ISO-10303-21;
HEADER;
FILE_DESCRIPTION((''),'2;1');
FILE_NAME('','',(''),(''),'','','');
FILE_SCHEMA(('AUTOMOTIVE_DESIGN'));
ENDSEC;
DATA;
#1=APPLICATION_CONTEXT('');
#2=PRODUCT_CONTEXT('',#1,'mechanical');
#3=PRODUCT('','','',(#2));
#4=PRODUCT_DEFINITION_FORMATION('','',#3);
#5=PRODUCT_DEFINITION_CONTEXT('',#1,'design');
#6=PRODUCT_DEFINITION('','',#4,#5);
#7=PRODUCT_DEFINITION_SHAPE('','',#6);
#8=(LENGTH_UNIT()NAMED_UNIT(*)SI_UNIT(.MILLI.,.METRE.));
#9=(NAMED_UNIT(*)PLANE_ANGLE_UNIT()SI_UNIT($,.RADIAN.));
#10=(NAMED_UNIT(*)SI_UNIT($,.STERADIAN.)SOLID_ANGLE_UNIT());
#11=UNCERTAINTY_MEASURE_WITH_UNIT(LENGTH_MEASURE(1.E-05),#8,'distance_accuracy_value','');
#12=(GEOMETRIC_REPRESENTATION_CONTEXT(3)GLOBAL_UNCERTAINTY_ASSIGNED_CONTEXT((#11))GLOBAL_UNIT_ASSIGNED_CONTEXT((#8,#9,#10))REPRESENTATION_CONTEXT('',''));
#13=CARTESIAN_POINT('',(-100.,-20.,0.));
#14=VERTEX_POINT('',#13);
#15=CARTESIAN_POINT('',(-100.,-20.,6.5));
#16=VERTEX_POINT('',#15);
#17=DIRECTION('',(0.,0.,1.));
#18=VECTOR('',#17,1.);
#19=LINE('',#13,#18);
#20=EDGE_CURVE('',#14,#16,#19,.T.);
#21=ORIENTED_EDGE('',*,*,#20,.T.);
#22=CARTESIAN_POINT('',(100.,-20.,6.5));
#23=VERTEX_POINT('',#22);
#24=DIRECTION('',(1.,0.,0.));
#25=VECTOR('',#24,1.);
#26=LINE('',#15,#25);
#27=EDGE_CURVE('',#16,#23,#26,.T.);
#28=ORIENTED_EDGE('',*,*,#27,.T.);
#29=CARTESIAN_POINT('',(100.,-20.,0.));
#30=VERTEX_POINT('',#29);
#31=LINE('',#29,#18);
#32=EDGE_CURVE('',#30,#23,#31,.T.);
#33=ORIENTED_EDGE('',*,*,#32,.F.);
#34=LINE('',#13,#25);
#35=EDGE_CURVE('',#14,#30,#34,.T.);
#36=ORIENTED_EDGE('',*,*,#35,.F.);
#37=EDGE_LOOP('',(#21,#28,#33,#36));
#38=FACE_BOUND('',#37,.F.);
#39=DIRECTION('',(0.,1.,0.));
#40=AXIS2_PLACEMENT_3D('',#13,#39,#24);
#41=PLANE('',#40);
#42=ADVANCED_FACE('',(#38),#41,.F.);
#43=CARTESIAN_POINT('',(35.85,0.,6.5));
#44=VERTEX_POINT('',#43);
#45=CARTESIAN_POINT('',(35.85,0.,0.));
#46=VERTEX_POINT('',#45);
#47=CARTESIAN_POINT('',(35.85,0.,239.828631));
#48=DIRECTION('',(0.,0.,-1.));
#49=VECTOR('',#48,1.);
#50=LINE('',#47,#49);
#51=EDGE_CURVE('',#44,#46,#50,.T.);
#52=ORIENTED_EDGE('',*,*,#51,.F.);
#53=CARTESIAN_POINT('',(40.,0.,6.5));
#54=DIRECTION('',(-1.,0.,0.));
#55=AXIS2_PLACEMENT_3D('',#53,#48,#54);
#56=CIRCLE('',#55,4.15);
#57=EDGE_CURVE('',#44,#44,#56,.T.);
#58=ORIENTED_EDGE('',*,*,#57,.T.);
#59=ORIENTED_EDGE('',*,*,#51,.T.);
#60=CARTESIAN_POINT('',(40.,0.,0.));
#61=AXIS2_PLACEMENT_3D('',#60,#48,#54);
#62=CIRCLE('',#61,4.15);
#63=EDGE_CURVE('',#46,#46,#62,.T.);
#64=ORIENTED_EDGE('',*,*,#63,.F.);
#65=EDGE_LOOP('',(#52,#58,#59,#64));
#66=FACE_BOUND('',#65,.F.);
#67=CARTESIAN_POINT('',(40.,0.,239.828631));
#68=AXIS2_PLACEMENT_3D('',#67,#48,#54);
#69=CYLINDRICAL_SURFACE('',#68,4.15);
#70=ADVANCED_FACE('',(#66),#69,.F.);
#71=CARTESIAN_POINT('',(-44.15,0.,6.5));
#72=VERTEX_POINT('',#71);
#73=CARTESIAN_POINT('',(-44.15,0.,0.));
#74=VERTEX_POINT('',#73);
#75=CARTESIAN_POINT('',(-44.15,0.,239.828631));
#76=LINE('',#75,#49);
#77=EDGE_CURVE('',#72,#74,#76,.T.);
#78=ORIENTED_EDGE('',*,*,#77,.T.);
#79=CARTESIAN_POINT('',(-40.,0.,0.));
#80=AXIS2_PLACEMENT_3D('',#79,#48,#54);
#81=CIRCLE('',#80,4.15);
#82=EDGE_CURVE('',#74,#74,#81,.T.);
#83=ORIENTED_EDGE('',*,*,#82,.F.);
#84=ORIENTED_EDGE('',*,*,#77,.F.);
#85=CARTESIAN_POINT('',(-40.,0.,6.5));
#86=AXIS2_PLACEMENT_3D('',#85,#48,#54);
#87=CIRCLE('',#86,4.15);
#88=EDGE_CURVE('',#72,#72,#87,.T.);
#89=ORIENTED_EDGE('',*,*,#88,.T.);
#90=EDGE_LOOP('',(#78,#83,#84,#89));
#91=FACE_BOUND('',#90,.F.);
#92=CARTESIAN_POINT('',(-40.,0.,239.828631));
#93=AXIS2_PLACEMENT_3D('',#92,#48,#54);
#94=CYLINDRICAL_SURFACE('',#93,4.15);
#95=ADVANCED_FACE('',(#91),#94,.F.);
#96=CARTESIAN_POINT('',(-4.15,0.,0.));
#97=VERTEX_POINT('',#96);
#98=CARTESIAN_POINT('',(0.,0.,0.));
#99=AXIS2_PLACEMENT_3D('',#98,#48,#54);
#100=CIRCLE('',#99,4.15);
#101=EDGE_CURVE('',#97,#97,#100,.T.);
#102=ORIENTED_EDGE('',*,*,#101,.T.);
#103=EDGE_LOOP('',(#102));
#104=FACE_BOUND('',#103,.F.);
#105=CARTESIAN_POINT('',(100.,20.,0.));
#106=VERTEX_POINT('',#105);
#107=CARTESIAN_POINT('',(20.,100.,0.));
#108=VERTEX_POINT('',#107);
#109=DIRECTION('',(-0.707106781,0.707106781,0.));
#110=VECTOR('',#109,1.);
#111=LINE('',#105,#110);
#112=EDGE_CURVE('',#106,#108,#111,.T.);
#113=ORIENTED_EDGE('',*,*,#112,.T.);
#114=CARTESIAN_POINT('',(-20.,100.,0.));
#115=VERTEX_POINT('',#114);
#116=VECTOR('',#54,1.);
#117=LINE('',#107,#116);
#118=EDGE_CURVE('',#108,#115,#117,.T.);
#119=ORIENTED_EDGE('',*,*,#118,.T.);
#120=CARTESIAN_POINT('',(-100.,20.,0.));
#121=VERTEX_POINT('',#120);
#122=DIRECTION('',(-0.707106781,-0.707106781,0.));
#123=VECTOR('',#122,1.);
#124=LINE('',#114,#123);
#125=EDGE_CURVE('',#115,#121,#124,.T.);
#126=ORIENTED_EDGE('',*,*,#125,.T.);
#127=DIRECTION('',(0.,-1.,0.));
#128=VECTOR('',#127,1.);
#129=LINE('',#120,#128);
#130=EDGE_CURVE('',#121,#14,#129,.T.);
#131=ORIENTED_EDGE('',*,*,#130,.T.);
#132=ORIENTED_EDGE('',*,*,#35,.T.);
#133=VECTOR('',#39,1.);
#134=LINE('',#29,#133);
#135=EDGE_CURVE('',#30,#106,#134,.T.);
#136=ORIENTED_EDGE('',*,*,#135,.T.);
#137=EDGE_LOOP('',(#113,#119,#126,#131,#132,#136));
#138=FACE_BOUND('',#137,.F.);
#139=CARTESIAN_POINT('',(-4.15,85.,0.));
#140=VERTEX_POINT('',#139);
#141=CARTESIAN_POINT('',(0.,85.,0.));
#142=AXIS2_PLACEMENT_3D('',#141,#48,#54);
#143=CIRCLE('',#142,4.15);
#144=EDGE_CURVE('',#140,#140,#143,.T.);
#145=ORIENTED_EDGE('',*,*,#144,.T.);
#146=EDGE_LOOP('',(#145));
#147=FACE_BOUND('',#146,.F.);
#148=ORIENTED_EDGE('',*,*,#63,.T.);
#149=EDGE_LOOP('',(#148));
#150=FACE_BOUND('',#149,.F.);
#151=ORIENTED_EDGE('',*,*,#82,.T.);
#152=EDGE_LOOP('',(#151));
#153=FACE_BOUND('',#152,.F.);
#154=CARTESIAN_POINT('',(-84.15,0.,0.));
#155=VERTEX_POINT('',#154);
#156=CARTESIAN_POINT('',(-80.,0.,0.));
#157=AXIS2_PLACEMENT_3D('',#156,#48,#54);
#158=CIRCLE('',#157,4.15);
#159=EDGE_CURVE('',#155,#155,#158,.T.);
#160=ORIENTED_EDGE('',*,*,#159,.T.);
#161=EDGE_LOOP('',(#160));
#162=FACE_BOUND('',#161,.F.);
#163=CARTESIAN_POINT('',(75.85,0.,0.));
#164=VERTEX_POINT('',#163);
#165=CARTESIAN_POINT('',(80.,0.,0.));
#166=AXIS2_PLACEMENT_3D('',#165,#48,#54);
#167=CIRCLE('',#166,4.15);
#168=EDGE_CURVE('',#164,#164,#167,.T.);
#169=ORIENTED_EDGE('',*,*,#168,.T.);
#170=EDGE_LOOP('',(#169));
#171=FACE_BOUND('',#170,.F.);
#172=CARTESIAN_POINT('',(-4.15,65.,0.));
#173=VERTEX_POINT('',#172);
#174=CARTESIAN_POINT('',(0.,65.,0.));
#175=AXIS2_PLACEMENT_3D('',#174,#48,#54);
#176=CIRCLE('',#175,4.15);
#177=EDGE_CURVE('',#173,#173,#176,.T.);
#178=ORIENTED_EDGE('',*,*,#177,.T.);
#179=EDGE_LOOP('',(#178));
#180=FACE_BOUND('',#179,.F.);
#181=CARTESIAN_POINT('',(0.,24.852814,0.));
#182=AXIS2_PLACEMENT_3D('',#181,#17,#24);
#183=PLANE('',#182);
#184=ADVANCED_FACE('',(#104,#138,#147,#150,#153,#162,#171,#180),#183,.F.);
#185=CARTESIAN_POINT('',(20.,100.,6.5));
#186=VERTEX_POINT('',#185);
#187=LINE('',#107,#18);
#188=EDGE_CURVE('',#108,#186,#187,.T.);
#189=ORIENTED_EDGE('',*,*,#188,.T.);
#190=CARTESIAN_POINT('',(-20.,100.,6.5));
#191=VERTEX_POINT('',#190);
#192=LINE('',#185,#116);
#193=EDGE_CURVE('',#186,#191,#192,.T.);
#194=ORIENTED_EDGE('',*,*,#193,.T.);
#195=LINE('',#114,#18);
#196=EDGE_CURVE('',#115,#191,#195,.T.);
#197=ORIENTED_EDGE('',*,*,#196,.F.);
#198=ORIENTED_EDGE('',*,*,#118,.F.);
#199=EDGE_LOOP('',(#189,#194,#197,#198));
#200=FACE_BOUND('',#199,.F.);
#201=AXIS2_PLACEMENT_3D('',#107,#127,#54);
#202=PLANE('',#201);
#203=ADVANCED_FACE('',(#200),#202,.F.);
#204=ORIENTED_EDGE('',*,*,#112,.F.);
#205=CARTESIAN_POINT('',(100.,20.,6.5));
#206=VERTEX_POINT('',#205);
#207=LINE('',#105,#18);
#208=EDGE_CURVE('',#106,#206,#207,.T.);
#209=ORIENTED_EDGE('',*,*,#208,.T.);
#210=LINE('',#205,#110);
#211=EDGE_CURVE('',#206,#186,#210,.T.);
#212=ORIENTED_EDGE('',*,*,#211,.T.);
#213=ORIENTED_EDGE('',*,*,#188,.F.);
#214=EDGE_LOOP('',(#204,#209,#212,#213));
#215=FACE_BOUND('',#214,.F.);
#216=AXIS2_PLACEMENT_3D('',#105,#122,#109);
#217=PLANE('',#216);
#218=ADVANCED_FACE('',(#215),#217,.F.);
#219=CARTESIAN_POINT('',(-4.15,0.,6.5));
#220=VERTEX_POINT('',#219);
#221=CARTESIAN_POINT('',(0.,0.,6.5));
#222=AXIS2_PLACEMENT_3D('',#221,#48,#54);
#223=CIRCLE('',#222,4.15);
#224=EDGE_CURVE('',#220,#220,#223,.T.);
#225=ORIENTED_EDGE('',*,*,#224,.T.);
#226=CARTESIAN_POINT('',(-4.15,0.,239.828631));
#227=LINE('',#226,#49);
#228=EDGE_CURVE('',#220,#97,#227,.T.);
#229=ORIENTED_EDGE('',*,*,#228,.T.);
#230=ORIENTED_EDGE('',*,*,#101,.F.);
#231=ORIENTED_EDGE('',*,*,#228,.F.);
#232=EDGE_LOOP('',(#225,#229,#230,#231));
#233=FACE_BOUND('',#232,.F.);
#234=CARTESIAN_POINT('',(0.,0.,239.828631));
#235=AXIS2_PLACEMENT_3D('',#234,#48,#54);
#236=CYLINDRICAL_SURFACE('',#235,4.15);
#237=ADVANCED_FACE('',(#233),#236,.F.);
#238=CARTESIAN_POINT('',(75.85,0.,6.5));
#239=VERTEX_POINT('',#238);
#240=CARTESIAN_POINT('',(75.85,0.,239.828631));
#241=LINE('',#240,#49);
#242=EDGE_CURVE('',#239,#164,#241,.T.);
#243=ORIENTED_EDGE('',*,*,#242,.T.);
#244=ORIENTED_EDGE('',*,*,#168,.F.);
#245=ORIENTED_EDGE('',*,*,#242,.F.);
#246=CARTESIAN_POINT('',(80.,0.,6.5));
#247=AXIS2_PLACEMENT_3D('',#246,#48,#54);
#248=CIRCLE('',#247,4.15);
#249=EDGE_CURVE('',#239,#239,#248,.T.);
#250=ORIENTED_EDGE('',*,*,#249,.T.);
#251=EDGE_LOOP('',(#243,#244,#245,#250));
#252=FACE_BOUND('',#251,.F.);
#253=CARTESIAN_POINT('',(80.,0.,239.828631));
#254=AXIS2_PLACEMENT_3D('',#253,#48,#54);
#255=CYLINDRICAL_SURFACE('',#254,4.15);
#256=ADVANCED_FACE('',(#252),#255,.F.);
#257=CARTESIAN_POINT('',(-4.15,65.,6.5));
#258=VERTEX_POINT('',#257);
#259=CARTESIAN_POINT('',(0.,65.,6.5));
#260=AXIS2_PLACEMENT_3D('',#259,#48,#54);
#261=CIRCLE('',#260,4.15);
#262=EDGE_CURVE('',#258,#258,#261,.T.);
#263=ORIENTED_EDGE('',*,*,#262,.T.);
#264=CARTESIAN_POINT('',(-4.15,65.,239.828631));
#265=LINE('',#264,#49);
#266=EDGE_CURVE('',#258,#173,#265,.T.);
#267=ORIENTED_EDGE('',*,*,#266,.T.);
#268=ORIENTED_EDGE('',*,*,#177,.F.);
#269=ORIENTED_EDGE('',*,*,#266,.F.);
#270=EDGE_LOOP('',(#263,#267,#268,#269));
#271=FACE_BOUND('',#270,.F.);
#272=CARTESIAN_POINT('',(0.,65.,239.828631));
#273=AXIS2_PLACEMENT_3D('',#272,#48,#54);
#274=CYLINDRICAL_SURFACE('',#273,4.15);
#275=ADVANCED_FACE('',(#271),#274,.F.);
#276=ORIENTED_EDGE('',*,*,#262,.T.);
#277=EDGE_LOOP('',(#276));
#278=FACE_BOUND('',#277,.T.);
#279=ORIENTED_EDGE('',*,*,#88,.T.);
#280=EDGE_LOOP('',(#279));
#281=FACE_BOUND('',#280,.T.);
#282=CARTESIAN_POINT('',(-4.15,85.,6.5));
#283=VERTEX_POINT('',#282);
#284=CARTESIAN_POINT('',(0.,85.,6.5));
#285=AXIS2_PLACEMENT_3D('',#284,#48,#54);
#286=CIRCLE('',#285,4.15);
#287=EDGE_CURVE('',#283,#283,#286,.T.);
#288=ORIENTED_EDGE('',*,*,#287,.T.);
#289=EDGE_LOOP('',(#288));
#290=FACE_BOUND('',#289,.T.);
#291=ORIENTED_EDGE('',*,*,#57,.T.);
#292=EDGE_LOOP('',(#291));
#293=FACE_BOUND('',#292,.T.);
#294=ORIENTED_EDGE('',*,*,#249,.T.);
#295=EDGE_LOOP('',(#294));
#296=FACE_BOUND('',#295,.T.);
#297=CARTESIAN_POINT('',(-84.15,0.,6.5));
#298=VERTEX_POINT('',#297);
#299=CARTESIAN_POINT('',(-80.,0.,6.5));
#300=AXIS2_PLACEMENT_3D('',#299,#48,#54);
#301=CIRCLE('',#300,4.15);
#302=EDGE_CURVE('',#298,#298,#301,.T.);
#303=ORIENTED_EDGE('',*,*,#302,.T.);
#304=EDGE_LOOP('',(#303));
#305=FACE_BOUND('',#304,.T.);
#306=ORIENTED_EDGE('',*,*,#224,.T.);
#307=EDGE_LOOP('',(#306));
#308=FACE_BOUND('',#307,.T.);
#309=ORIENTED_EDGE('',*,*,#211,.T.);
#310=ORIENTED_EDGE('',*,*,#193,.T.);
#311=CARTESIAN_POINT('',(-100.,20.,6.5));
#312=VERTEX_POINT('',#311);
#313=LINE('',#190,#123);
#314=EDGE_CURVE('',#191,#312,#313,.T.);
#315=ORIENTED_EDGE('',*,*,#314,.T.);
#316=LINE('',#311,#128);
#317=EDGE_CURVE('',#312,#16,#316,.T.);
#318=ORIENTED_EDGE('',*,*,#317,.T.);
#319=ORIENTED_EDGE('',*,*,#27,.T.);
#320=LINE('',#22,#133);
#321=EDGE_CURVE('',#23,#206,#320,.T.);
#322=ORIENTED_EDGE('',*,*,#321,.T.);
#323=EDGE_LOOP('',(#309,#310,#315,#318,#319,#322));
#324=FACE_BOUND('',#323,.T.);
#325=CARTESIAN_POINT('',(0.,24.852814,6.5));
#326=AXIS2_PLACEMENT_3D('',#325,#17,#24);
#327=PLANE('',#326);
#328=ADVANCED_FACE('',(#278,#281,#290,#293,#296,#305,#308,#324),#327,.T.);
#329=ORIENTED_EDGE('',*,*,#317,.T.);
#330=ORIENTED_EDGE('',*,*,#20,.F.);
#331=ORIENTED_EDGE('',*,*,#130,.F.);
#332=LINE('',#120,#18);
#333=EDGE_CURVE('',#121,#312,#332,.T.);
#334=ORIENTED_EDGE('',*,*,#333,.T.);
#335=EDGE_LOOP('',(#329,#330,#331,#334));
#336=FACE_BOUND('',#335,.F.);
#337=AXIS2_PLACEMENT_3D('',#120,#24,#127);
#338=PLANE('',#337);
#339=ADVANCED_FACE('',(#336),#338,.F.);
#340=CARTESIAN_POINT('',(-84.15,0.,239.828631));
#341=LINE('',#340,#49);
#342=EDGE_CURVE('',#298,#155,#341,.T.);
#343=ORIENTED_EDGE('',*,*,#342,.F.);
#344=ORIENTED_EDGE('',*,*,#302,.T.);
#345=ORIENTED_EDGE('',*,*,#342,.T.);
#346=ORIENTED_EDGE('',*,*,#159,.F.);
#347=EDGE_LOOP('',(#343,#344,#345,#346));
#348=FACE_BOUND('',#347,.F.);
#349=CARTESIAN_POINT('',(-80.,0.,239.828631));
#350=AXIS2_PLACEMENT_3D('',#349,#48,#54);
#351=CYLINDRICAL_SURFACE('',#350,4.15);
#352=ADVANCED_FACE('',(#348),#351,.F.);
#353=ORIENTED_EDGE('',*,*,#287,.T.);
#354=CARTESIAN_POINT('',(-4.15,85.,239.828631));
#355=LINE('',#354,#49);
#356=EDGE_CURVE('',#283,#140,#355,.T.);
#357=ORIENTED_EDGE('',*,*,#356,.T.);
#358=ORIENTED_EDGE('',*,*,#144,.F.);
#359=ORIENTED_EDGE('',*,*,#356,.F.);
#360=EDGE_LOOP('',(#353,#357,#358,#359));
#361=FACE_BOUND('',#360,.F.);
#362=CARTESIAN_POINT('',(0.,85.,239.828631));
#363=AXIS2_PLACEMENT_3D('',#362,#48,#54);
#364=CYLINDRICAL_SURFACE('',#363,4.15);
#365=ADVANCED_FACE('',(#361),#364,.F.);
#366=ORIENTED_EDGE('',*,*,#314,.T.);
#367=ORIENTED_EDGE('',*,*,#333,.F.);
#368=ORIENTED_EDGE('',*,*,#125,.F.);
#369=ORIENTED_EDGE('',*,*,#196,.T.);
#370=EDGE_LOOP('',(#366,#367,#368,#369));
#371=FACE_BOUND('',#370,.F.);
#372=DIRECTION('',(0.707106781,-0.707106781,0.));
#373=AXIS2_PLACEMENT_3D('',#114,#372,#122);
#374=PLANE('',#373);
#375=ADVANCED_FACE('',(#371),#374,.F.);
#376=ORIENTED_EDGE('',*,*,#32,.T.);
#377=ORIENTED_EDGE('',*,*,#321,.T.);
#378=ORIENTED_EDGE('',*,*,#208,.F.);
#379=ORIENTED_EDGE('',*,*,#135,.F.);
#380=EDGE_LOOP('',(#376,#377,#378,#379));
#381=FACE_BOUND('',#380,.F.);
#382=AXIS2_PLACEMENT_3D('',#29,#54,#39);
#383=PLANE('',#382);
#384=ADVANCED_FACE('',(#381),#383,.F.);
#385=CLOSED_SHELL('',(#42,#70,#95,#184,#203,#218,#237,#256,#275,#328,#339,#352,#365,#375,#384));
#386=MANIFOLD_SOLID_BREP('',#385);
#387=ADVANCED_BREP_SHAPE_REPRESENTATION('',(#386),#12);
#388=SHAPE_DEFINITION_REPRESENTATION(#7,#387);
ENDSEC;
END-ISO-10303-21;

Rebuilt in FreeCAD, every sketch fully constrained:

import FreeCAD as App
import Part
import Sketcher

V = App.Vector
Q = App.Units.Quantity


def add_polygon(sketch, points):
    """Adds a closed chain of lines whose ends are joined by coincident constraints."""
    first, n = sketch.GeometryCount, len(points)
    for a, b in zip(points, points[1:] + points[:1]):
        sketch.addGeometry(Part.LineSegment(App.Vector(*a, 0), App.Vector(*b, 0)), False)
    for i in range(n):
        sketch.addConstraint(Sketcher.Constraint("Coincident", first + i, 2, first + (i + 1) % n, 1))

doc = App.newDocument("Part")
params = doc.addObject("Spreadsheet::Sheet", "Params")
for row, (alias, value) in enumerate([
    ("sketch1_width", "200 mm"),
    ("sketch1_width2", "40 mm"),
    ("pad1_length", "6.5 mm"),
    ("sketch2_diameter", "8.3 mm"),
    ("hole_diameter", "8.3 mm"),
], start=1):
    params.set(f"A{row}", alias)
    params.set(f"B{row}", "=" + value)
    params.setAlias(f"B{row}", alias)

body = doc.addObject("PartDesign::Body", "Body")

sketch1 = body.newObject("Sketcher::SketchObject", "Sketch")
sketch1.AttachmentSupport = (doc.getObject("XY_Plane"), [""])
sketch1.MapMode = "FlatFace"
add_polygon(sketch1, [(-20, 100), (-100, 20), (-100, -20), (100, -20), (100, 20), (20, 100)])
sketch1.addConstraint([
    Sketcher.Constraint("Vertical", 1),
    Sketcher.Constraint("Horizontal", 2),
    Sketcher.Constraint("Vertical", 3),
    Sketcher.Constraint("Horizontal", 5),
    Sketcher.Constraint("Symmetric", 0, 2, 2, 2, -1, 1),
    Sketcher.Constraint("Perpendicular", 0, 4),
    Sketcher.Constraint("Horizontal", 0, 2, 3, 2),
    Sketcher.Constraint("Equal", 5, 1),
    Sketcher.Constraint("Equal", 0, 4),
    Sketcher.Constraint("DistanceX", 2, 1, 2, 2, Q("200 mm")),
    Sketcher.Constraint("DistanceX", 5, 2, 5, 1, Q("40 mm")),
])
sketch1.setExpression("Constraints[15]", "Params.sketch1_width")
sketch1.setExpression("Constraints[16]", "Params.sketch1_width2")
pad1 = body.newObject("PartDesign::Pad", "Pad")
pad1.Profile = sketch1
pad1.setExpression("Length", "Params.pad1_length")

sketch2 = body.newObject("Sketcher::SketchObject", "Sketch001")
sketch2.AttachmentSupport = (doc.getObject("XY_Plane"), [""])
sketch2.MapMode = "FlatFace"
sketch2.AttachmentOffset = App.Placement(V(0, 0, 6.5), App.Rotation())
sketch2.addGeometry([
    Part.Circle(V(0, 85, 0), V(0, 0, 1), 4.2),
    Part.Circle(V(0, 65, 0), V(0, 0, 1), 4.2),
    Part.Circle(V(-40, 0, 0), V(0, 0, 1), 4.2),
    Part.Circle(V(-80, 0, 0), V(0, 0, 1), 4.2),
    Part.Circle(V(0, 0, 0), V(0, 0, 1), 4.2),
    Part.Circle(V(40, 0, 0), V(0, 0, 1), 4.2),
    Part.Circle(V(80, 0, 0), V(0, 0, 1), 4.2),
], False)
sketch2.addConstraint([
    Sketcher.Constraint("Coincident", 4, 3, -1, 1),
    Sketcher.Constraint("Equal", 0, 1),
    Sketcher.Constraint("Equal", 1, 2),
    Sketcher.Constraint("Equal", 2, 3),
    Sketcher.Constraint("Equal", 3, 4),
    Sketcher.Constraint("Equal", 4, 5),
    Sketcher.Constraint("Equal", 5, 6),
    Sketcher.Constraint("Symmetric", 2, 3, 5, 3, -1, 1),
    Sketcher.Constraint("Symmetric", 3, 3, 6, 3, -1, 1),
    Sketcher.Constraint("PointOnObject", 0, 3, -2),
    Sketcher.Constraint("PointOnObject", 1, 3, -2),
    Sketcher.Constraint("PointOnObject", 2, 3, -1),
    Sketcher.Constraint("PointOnObject", 3, 3, -1),
    Sketcher.Constraint("Diameter", 0, Q("8.3 mm")),
    Sketcher.Constraint("DistanceY", -1, 1, 0, 3, Q("85 mm")),
    Sketcher.Constraint("DistanceY", -1, 1, 1, 3, Q("65 mm")),
    Sketcher.Constraint("DistanceX", 2, 3, -1, 1, Q("40 mm")),
    Sketcher.Constraint("DistanceX", 3, 3, -1, 1, Q("80 mm")),
])
sketch2.setExpression("Constraints[13]", "Params.sketch2_diameter")
doc.recompute()
hole = body.newObject("PartDesign::Hole", "Hole")
hole.Profile = sketch2
hole.ThreadType = "None"
hole.setExpression("Diameter", "Params.hole_diameter")
hole.DepthType = "ThroughAll"

doc.recompute()
